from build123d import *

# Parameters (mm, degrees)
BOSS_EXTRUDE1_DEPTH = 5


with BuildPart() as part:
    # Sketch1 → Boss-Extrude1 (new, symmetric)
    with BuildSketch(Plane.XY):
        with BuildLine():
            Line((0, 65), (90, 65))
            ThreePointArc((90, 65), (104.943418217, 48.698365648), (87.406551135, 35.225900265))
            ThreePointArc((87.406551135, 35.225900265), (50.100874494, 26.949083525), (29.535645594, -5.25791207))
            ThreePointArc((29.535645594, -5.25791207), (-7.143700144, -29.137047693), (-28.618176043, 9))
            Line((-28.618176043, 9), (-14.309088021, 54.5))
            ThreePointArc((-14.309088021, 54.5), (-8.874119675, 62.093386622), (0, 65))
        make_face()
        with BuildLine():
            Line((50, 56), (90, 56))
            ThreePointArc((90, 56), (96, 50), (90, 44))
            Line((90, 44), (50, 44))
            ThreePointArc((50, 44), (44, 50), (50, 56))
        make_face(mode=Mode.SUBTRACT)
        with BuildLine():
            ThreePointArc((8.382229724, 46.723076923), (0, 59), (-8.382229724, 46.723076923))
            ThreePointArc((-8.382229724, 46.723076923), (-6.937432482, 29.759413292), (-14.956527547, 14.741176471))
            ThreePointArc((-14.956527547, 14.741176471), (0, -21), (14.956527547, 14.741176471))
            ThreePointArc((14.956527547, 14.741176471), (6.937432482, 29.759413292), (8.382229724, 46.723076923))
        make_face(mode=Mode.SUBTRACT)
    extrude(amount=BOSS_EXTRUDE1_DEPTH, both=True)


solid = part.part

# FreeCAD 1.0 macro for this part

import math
import FreeCAD as App
import Part
import Sketcher
Q = App.Units.Quantity

doc = App.newDocument("Part")
body = doc.addObject("PartDesign::Body", "Body")

# Sketch on XY plane
sketch1 = body.newObject("Sketcher::SketchObject", "Sketch")
sketch1.AttachmentSupport = (doc.getObject("XY_Plane"), [""])
sketch1.MapMode = "FlatFace"
sketch1.addGeometry(Part.LineSegment(App.Vector(90, 65, 0), App.Vector(0, 65, 0)), False)
sketch1.addGeometry(Part.ArcOfCircle(Part.Circle(App.Vector(0, 50, 0), App.Vector(0, 0, 1), 15), math.radians(90), math.radians(162.542397)), False)
sketch1.addGeometry(Part.LineSegment(App.Vector(-14.309088, 54.5, 0), App.Vector(-28.618176, 9, 0)), False)
sketch1.addGeometry(Part.ArcOfCircle(Part.Circle(App.Vector(0, 0, 0), App.Vector(0, 0, 1), 30), math.radians(162.542397), math.radians(349.905994)), False)
sketch1.addGeometry(Part.ArcOfCircle(Part.Circle(App.Vector(78.761722, -14.021099, 0), App.Vector(0, 0, 1), 50), math.radians(80.043724), math.radians(169.905994)), False)
sketch1.addGeometry(Part.ArcOfCircle(Part.Circle(App.Vector(90, 50, 0), App.Vector(0, 0, 1), 15), math.radians(-99.956276), math.radians(90)), False)
sketch1.addGeometry(Part.LineSegment(App.Vector(50, 56, 0), App.Vector(90, 56, 0)), False)
sketch1.addGeometry(Part.ArcOfCircle(Part.Circle(App.Vector(90, 50, 0), App.Vector(0, 0, 1), 6), math.radians(-90), math.radians(90)), False)
sketch1.addGeometry(Part.LineSegment(App.Vector(90, 44, 0), App.Vector(50, 44, 0)), False)
sketch1.addGeometry(Part.ArcOfCircle(Part.Circle(App.Vector(50, 50, 0), App.Vector(0, 0, 1), 6), math.radians(90), math.radians(270)), False)
sketch1.addGeometry(Part.ArcOfCircle(Part.Circle(App.Vector(36.322995, 35.8, 0), App.Vector(0, 0, 1), 30), math.radians(158.647637), math.radians(224.58453)), False)
sketch1.addGeometry(Part.ArcOfCircle(Part.Circle(App.Vector(0, 0, 0), App.Vector(0, 0, 1), 21), math.radians(135.41547), math.radians(404.58453)), False)
sketch1.addGeometry(Part.ArcOfCircle(Part.Circle(App.Vector(-36.322995, 35.8, 0), App.Vector(0, 0, 1), 30), math.radians(-44.58453), math.radians(21.352363)), False)
sketch1.addGeometry(Part.ArcOfCircle(Part.Circle(App.Vector(0, 50, 0), App.Vector(0, 0, 1), 9), math.radians(-21.352363), math.radians(201.352363)), False)
sketch1.addConstraint(Sketcher.Constraint("Tangent", 0, 2, 1, 1))
sketch1.addConstraint(Sketcher.Constraint("Tangent", 1, 2, 2, 1))
sketch1.addConstraint(Sketcher.Constraint("Tangent", 2, 2, 3, 1))
sketch1.addConstraint(Sketcher.Constraint("Tangent", 3, 2, 4, 2))
sketch1.addConstraint(Sketcher.Constraint("Tangent", 4, 1, 5, 1))
sketch1.addConstraint(Sketcher.Constraint("Tangent", 5, 2, 0, 1))
sketch1.addConstraint(Sketcher.Constraint("Tangent", 6, 2, 7, 2))
sketch1.addConstraint(Sketcher.Constraint("Tangent", 7, 1, 8, 1))
sketch1.addConstraint(Sketcher.Constraint("Tangent", 8, 2, 9, 2))
sketch1.addConstraint(Sketcher.Constraint("Tangent", 9, 1, 6, 1))
sketch1.addConstraint(Sketcher.Constraint("Tangent", 10, 2, 11, 2))
sketch1.addConstraint(Sketcher.Constraint("Tangent", 11, 1, 12, 1))
sketch1.addConstraint(Sketcher.Constraint("Tangent", 12, 2, 13, 2))
sketch1.addConstraint(Sketcher.Constraint("Tangent", 13, 1, 10, 1))
sketch1.addConstraint(Sketcher.Constraint("Horizontal", 0))
sketch1.addConstraint(Sketcher.Constraint("Horizontal", 6))
sketch1.addConstraint(Sketcher.Constraint("Horizontal", 8))
sketch1.addConstraint(Sketcher.Constraint("Coincident", 3, 3, -1, 1))
sketch1.addConstraint(Sketcher.Constraint("Coincident", 11, 3, -1, 1))
sketch1.addConstraint(Sketcher.Constraint("Coincident", 7, 3, 5, 3))
sketch1.addConstraint(Sketcher.Constraint("Coincident", 13, 3, 1, 3))
sketch1.addConstraint(Sketcher.Constraint("Equal", 1, 5))
sketch1.addConstraint(Sketcher.Constraint("Equal", 3, 10))
sketch1.addConstraint(Sketcher.Constraint("Equal", 10, 12))
sketch1.addConstraint(Sketcher.Constraint("PointOnObject", 1, 3, -2))
sketch1.addConstraint(Sketcher.Constraint("Radius", 1, Q("15 mm")))
sketch1.addConstraint(Sketcher.Constraint("Radius", 3, Q("30 mm")))
sketch1.addConstraint(Sketcher.Constraint("Radius", 4, Q("50 mm")))
sketch1.addConstraint(Sketcher.Constraint("Radius", 7, Q("6 mm")))
sketch1.addConstraint(Sketcher.Constraint("Radius", 11, Q("21 mm")))
sketch1.addConstraint(Sketcher.Constraint("Radius", 13, Q("9 mm")))
sketch1.addConstraint(Sketcher.Constraint("DistanceX", 0, 2, 0, 1, Q("90 mm")))
sketch1.addConstraint(Sketcher.Constraint("DistanceX", 6, 1, 6, 2, Q("40 mm")))
sketch1.addConstraint(Sketcher.Constraint("DistanceY", -1, 1, 1, 3, Q("50 mm")))
pad1 = body.newObject("PartDesign::Pad", "Pad")
pad1.Profile = sketch1
pad1.Length = 10
pad1.Midplane = True

doc.recompute()
